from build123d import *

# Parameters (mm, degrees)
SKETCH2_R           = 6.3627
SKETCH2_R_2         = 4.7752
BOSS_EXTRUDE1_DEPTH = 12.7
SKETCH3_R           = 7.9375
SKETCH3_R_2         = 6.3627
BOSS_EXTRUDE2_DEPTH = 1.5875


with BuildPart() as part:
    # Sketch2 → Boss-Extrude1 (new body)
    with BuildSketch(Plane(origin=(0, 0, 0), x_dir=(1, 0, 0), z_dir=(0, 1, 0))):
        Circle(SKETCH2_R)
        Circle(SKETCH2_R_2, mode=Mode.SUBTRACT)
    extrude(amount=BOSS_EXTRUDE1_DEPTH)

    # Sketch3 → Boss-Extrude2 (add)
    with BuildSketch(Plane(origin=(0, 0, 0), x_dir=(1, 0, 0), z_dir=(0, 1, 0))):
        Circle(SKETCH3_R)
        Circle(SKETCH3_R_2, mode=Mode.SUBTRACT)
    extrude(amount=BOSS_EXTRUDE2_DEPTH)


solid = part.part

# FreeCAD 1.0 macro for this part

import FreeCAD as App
import Part
import Sketcher
from FreeCAD import Vector
Q = App.Units.Quantity

doc = App.newDocument("Part")
body = doc.addObject("PartDesign::Body", "Body")

# Sketch on XZ plane
sketch1 = doc.addObject("Sketcher::SketchObject", "Sketch")
body.addObject(sketch1)
sketch1.AttachmentSupport = (doc.XZ_Plane, [""])
sketch1.MapMode = "FlatFace"
sketch1.addGeometry([
    Part.Circle(Vector(0, 0, 0), Vector(0, 0, 1), 6.4),
    Part.Circle(Vector(0, 0, 0), Vector(0, 0, 1), 4.8),
], False)
sketch1.addConstraint([
    Sketcher.Constraint("Coincident", 0, 3, -1, 1),
    Sketcher.Constraint("Coincident", 1, 3, -1, 1),
    Sketcher.Constraint("Diameter", 0, Q("0.501 in")),
    Sketcher.Constraint("Diameter", 1, Q("0.376 in")),
])
pad1 = doc.addObject("PartDesign::Pad", "Pad")
body.addObject(pad1)
pad1.Profile = sketch1
pad1.Length = Q("0.5 in")
pad1.Reversed = True

# Sketch on XZ plane
sketch2 = doc.addObject("Sketcher::SketchObject", "Sketch001")
body.addObject(sketch2)
sketch2.AttachmentSupport = (doc.XZ_Plane, [""])
sketch2.MapMode = "FlatFace"
sketch2.addGeometry([
    Part.Circle(Vector(0, 0, 0), Vector(0, 0, 1), 8),
    Part.Circle(Vector(0, 0, 0), Vector(0, 0, 1), 6),
], False)
sketch2.addConstraint([
    Sketcher.Constraint("Coincident", 0, 3, -1, 1),
    Sketcher.Constraint("Coincident", 1, 3, -1, 1),
    Sketcher.Constraint("Diameter", 0, Q("0.625 in")),
    Sketcher.Constraint("Diameter", 1, Q("0.501 in")),
])
pad2 = doc.addObject("PartDesign::Pad", "Pad001")
body.addObject(pad2)
pad2.Profile = sketch2
pad2.Length = Q("0.0625 in")
pad2.Reversed = True

doc.recompute()
